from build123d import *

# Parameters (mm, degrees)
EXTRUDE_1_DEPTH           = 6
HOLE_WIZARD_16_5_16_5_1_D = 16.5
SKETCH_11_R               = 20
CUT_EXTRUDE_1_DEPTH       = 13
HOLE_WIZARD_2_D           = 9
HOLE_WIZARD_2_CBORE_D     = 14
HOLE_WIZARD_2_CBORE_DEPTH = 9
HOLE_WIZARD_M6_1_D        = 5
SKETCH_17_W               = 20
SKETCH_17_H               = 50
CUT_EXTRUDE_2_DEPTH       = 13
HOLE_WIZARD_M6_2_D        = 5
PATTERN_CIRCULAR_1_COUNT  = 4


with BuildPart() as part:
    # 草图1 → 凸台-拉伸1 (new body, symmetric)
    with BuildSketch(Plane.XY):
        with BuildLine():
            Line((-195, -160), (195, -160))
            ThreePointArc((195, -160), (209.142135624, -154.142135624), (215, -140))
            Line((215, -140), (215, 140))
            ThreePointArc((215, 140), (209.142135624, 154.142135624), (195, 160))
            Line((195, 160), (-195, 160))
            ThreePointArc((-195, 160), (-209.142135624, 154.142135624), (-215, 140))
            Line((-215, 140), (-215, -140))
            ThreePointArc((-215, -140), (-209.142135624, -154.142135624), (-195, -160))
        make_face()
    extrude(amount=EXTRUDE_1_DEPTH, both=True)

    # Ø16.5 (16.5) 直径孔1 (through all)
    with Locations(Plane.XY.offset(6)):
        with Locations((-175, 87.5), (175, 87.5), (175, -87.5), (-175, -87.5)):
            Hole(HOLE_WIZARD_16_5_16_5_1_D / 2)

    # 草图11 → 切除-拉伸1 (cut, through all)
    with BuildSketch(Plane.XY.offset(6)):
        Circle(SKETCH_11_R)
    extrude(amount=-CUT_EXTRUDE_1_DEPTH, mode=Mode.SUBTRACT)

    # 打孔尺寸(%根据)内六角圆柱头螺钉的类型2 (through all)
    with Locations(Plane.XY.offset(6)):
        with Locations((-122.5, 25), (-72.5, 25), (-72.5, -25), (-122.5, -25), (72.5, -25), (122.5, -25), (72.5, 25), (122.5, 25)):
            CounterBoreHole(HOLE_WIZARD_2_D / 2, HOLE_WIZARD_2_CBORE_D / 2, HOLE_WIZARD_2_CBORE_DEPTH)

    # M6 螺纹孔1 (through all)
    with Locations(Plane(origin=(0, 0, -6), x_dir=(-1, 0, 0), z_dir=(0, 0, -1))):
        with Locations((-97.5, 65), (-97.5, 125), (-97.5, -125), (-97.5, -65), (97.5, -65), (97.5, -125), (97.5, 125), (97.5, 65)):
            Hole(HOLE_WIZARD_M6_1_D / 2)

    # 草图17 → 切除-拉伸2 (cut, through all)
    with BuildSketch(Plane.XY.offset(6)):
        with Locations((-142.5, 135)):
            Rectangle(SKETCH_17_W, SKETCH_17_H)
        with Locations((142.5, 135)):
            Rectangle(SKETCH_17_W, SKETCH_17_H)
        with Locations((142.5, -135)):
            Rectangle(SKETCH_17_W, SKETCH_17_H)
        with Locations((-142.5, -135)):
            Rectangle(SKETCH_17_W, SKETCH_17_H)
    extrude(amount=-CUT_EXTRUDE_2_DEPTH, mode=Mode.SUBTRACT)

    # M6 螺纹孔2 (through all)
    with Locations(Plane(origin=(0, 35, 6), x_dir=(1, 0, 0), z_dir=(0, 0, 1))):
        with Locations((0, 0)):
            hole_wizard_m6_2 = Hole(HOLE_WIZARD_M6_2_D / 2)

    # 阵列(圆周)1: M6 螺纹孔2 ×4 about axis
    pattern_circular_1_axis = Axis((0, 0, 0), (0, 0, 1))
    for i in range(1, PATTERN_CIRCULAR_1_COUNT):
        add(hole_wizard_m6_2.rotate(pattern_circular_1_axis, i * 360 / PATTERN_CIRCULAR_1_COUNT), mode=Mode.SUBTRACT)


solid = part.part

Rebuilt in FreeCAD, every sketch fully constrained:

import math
import FreeCAD as App
import Part
import Sketcher
from FreeCAD import Vector


def add_polygon(sketch, points):
    """Adds a closed chain of lines whose ends are joined by coincident constraints."""
    first, n = sketch.GeometryCount, len(points)
    for a, b in zip(points, points[1:] + points[:1]):
        sketch.addGeometry(Part.LineSegment(App.Vector(*a, 0), App.Vector(*b, 0)), False)
    for i in range(n):
        sketch.addConstraint(Sketcher.Constraint("Coincident", first + i, 2, first + (i + 1) % n, 1))

doc = App.newDocument("Part")
body = doc.addObject("PartDesign::Body", "Body")

sketch1 = body.newObject("Sketcher::SketchObject", "Sketch")
sketch1.AttachmentSupport = (doc.getObject("XY_Plane"), [""])
sketch1.MapMode = "FlatFace"
sketch1.addGeometry(Part.LineSegment(Vector(-195, -160, 0), Vector(195, -160, 0)), False)
sketch1.addGeometry(Part.ArcOfCircle(Part.Circle(Vector(195, -140, 0), Vector(0, 0, 1), 20), math.radians(-90), math.radians(0)), False)
sketch1.addGeometry(Part.LineSegment(Vector(215, -140, 0), Vector(215, 140, 0)), False)
sketch1.addGeometry(Part.ArcOfCircle(Part.Circle(Vector(195, 140, 0), Vector(0, 0, 1), 20), math.radians(0), math.radians(90)), False)
sketch1.addGeometry(Part.LineSegment(Vector(195, 160, 0), Vector(-195, 160, 0)), False)
sketch1.addGeometry(Part.ArcOfCircle(Part.Circle(Vector(-195, 140, 0), Vector(0, 0, 1), 20), math.radians(90), math.radians(180)), False)
sketch1.addGeometry(Part.LineSegment(Vector(-215, 140, 0), Vector(-215, -140, 0)), False)
sketch1.addGeometry(Part.ArcOfCircle(Part.Circle(Vector(-195, -140, 0), Vector(0, 0, 1), 20), math.radians(180), math.radians(270)), False)
sketch1.addConstraint(Sketcher.Constraint("Tangent", 0, 2, 1, 1))
sketch1.addConstraint(Sketcher.Constraint("Tangent", 1, 2, 2, 1))
sketch1.addConstraint(Sketcher.Constraint("Tangent", 2, 2, 3, 1))
sketch1.addConstraint(Sketcher.Constraint("Tangent", 3, 2, 4, 1))
sketch1.addConstraint(Sketcher.Constraint("Tangent", 4, 2, 5, 1))
sketch1.addConstraint(Sketcher.Constraint("Tangent", 5, 2, 6, 1))
sketch1.addConstraint(Sketcher.Constraint("Tangent", 6, 2, 7, 1))
sketch1.addConstraint(Sketcher.Constraint("Tangent", 7, 2, 0, 1))
sketch1.addConstraint(Sketcher.Constraint("Horizontal", 0))
sketch1.addConstraint(Sketcher.Constraint("Vertical", 2))
sketch1.addConstraint(Sketcher.Constraint("Horizontal", 4))
sketch1.addConstraint(Sketcher.Constraint("Vertical", 6))
sketch1.addConstraint(Sketcher.Constraint("Equal", 1, 3))
sketch1.addConstraint(Sketcher.Constraint("Equal", 3, 5))
sketch1.addConstraint(Sketcher.Constraint("Equal", 5, 7))
sketch1.addConstraint(Sketcher.Constraint("Symmetric", 1, 3, 5, 3, -1, 1))
sketch1.addConstraint(Sketcher.Constraint("Radius", 1, 20.0))
sketch1.addConstraint(Sketcher.Constraint("DistanceX", 0, 1, 0, 2, 390.0))
sketch1.addConstraint(Sketcher.Constraint("DistanceY", 2, 1, 2, 2, 280.0))
pad1 = body.newObject("PartDesign::Pad", "Pad")
pad1.Profile = sketch1
pad1.Length = 12
pad1.Midplane = True

sketch2 = body.newObject("Sketcher::SketchObject", "Sketch001")
sketch2.AttachmentSupport = (doc.getObject("XY_Plane"), [""])
sketch2.MapMode = "FlatFace"
sketch2.AttachmentOffset = App.Placement(Vector(0, 0, 6), App.Rotation())
sketch2.addGeometry(Part.Circle(Vector(-175, 88, 0), Vector(0, 0, 1), 8), False)
sketch2.addGeometry(Part.Circle(Vector(175, 88, 0), Vector(0, 0, 1), 8), False)
sketch2.addGeometry(Part.Circle(Vector(175, -88, 0), Vector(0, 0, 1), 8), False)
sketch2.addGeometry(Part.Circle(Vector(-175, -88, 0), Vector(0, 0, 1), 8), False)
sketch2.addConstraint(Sketcher.Constraint("Equal", 0, 1))
sketch2.addConstraint(Sketcher.Constraint("Equal", 1, 2))
sketch2.addConstraint(Sketcher.Constraint("Equal", 2, 3))
sketch2.addConstraint(Sketcher.Constraint("Symmetric", 0, 3, 2, 3, -1, 1))
sketch2.addConstraint(Sketcher.Constraint("Symmetric", 1, 3, 3, 3, -1, 1))
sketch2.addConstraint(Sketcher.Constraint("Symmetric", 0, 3, 1, 3, -2))
sketch2.addConstraint(Sketcher.Constraint("Diameter", 0, 16.5))
sketch2.addConstraint(Sketcher.Constraint("DistanceX", 0, 3, -1, 1, 175.0))
sketch2.addConstraint(Sketcher.Constraint("DistanceY", 2, 3, 1, 3, 175.0))
doc.recompute()
hole = body.newObject("PartDesign::Hole", "Hole")
hole.Profile = sketch2
hole.ThreadType = "None"
hole.Diameter = 16.5
hole.DepthType = "ThroughAll"

sketch3 = body.newObject("Sketcher::SketchObject", "Sketch002")
sketch3.AttachmentSupport = (doc.getObject("XY_Plane"), [""])
sketch3.MapMode = "FlatFace"
sketch3.AttachmentOffset = App.Placement(Vector(0, 0, 6), App.Rotation())
sketch3.addGeometry(Part.Circle(Vector(0, 0, 0), Vector(0, 0, 1), 20), False)
sketch3.addConstraint(Sketcher.Constraint("Coincident", 0, 3, -1, 1))
sketch3.addConstraint(Sketcher.Constraint("Diameter", 0, 40.0))
pocket1 = body.newObject("PartDesign::Pocket", "Pocket")
pocket1.Profile = sketch3
pocket1.Type = "ThroughAll"

sketch4 = body.newObject("Sketcher::SketchObject", "Sketch003")
sketch4.AttachmentSupport = (doc.getObject("XY_Plane"), [""])
sketch4.MapMode = "FlatFace"
sketch4.AttachmentOffset = App.Placement(Vector(0, 0, 6), App.Rotation())
sketch4.addGeometry(Part.Circle(Vector(-122.5, 25, 0), Vector(0, 0, 1), 4.5), False)
sketch4.addGeometry(Part.Circle(Vector(-72.5, 25, 0), Vector(0, 0, 1), 4.5), False)
sketch4.addGeometry(Part.Circle(Vector(-72.5, -25, 0), Vector(0, 0, 1), 4.5), False)
sketch4.addGeometry(Part.Circle(Vector(-122.5, -25, 0), Vector(0, 0, 1), 4.5), False)
sketch4.addGeometry(Part.Circle(Vector(72.5, -25, 0), Vector(0, 0, 1), 4.5), False)
sketch4.addGeometry(Part.Circle(Vector(122.5, -25, 0), Vector(0, 0, 1), 4.5), False)
sketch4.addGeometry(Part.Circle(Vector(72.5, 25, 0), Vector(0, 0, 1), 4.5), False)
sketch4.addGeometry(Part.Circle(Vector(122.5, 25, 0), Vector(0, 0, 1), 4.5), False)
sketch4.addConstraint(Sketcher.Constraint("Equal", 0, 1))
sketch4.addConstraint(Sketcher.Constraint("Equal", 1, 2))
sketch4.addConstraint(Sketcher.Constraint("Equal", 2, 3))
sketch4.addConstraint(Sketcher.Constraint("Equal", 3, 4))
sketch4.addConstraint(Sketcher.Constraint("Equal", 4, 5))
sketch4.addConstraint(Sketcher.Constraint("Equal", 5, 6))
sketch4.addConstraint(Sketcher.Constraint("Equal", 6, 7))
sketch4.addConstraint(Sketcher.Constraint("Symmetric", 1, 3, 4, 3, -1, 1))
sketch4.addConstraint(Sketcher.Constraint("Symmetric", 0, 3, 5, 3, -1, 1))
sketch4.addConstraint(Sketcher.Constraint("Symmetric", 2, 3, 6, 3, -1, 1))
sketch4.addConstraint(Sketcher.Constraint("Symmetric", 3, 3, 7, 3, -1, 1))
sketch4.addConstraint(Sketcher.Constraint("Symmetric", 2, 3, 4, 3, -2))
sketch4.addConstraint(Sketcher.Constraint("Symmetric", 3, 3, 5, 3, -2))
sketch4.addConstraint(Sketcher.Constraint("Horizontal", 0, 3, 1, 3))
sketch4.addConstraint(Sketcher.Constraint("Diameter", 0, 9.0))
sketch4.addConstraint(Sketcher.Constraint("DistanceY", -1, 1, 0, 3, 25.0))
sketch4.addConstraint(Sketcher.Constraint("DistanceX", 0, 3, 1, 3, 50.0))
sketch4.addConstraint(Sketcher.Constraint("DistanceX", 2, 3, 4, 3, 145.0))
doc.recompute()
hole2 = body.newObject("PartDesign::Hole", "Hole001")
hole2.Profile = sketch4
hole2.ThreadType = "None"
hole2.Diameter = 9
hole2.DepthType = "ThroughAll"
hole2.HoleCutType = "Counterbore"
hole2.HoleCutDiameter = 14
hole2.HoleCutDepth = 9

sketch5 = body.newObject("Sketcher::SketchObject", "Sketch004")
sketch5.AttachmentSupport = (doc.getObject("XY_Plane"), [""])
sketch5.MapMode = "FlatFace"
sketch5.AttachmentOffset = App.Placement(Vector(0, 0, -6), App.Rotation())
sketch5.addGeometry(Part.Circle(Vector(97.5, 65, 0), Vector(0, 0, 1), 2.5), False)
sketch5.addGeometry(Part.Circle(Vector(97.5, 125, 0), Vector(0, 0, 1), 2.5), False)
sketch5.addGeometry(Part.Circle(Vector(97.5, -125, 0), Vector(0, 0, 1), 2.5), False)
sketch5.addGeometry(Part.Circle(Vector(97.5, -65, 0), Vector(0, 0, 1), 2.5), False)
sketch5.addGeometry(Part.Circle(Vector(-97.5, -65, 0), Vector(0, 0, 1), 2.5), False)
sketch5.addGeometry(Part.Circle(Vector(-97.5, -125, 0), Vector(0, 0, 1), 2.5), False)
sketch5.addGeometry(Part.Circle(Vector(-97.5, 125, 0), Vector(0, 0, 1), 2.5), False)
sketch5.addGeometry(Part.Circle(Vector(-97.5, 65, 0), Vector(0, 0, 1), 2.5), False)
sketch5.addConstraint(Sketcher.Constraint("Equal", 0, 1))
sketch5.addConstraint(Sketcher.Constraint("Equal", 1, 2))
sketch5.addConstraint(Sketcher.Constraint("Equal", 2, 3))
sketch5.addConstraint(Sketcher.Constraint("Equal", 3, 4))
sketch5.addConstraint(Sketcher.Constraint("Equal", 4, 5))
sketch5.addConstraint(Sketcher.Constraint("Equal", 5, 6))
sketch5.addConstraint(Sketcher.Constraint("Equal", 6, 7))
sketch5.addConstraint(Sketcher.Constraint("Symmetric", 0, 3, 4, 3, -1, 1))
sketch5.addConstraint(Sketcher.Constraint("Symmetric", 1, 3, 5, 3, -1, 1))
sketch5.addConstraint(Sketcher.Constraint("Symmetric", 2, 3, 6, 3, -1, 1))
sketch5.addConstraint(Sketcher.Constraint("Symmetric", 3, 3, 7, 3, -1, 1))
sketch5.addConstraint(Sketcher.Constraint("Symmetric", 3, 3, 4, 3, -2))
sketch5.addConstraint(Sketcher.Constraint("Symmetric", 2, 3, 5, 3, -2))
sketch5.addConstraint(Sketcher.Constraint("Vertical", 0, 3, 1, 3))
sketch5.addConstraint(Sketcher.Constraint("Diameter", 0, 5.0))
sketch5.addConstraint(Sketcher.Constraint("DistanceY", -1, 1, 0, 3, 65.0))
sketch5.addConstraint(Sketcher.Constraint("DistanceY", -1, 1, 1, 3, 125.0))
sketch5.addConstraint(Sketcher.Constraint("DistanceX", 4, 3, 3, 3, 195.0))
doc.recompute()
hole3 = body.newObject("PartDesign::Hole", "Hole002")
hole3.Profile = sketch5
hole3.ThreadType = "None"
hole3.Diameter = 5
hole3.DepthType = "ThroughAll"
hole3.Reversed = True

sketch6 = body.newObject("Sketcher::SketchObject", "Sketch005")
sketch6.AttachmentSupport = (doc.getObject("XY_Plane"), [""])
sketch6.MapMode = "FlatFace"
sketch6.AttachmentOffset = App.Placement(Vector(0, 0, 6), App.Rotation())
add_polygon(sketch6, [(-152, 160), (-152, 110), (-132, 110), (-132, 160)])
add_polygon(sketch6, [(132, 160), (132, 110), (152, 110), (152, 160)])
add_polygon(sketch6, [(132, -110), (132, -160), (152, -160), (152, -110)])
add_polygon(sketch6, [(-152, -110), (-152, -160), (-132, -160), (-132, -110)])
sketch6.addConstraint(Sketcher.Constraint("Vertical", 0))
sketch6.addConstraint(Sketcher.Constraint("Horizontal", 1))
sketch6.addConstraint(Sketcher.Constraint("Vertical", 2))
sketch6.addConstraint(Sketcher.Constraint("Horizontal", 3))
sketch6.addConstraint(Sketcher.Constraint("Vertical", 4))
sketch6.addConstraint(Sketcher.Constraint("Horizontal", 5))
sketch6.addConstraint(Sketcher.Constraint("Vertical", 6))
sketch6.addConstraint(Sketcher.Constraint("Horizontal", 7))
sketch6.addConstraint(Sketcher.Constraint("Vertical", 8))
sketch6.addConstraint(Sketcher.Constraint("Horizontal", 9))
sketch6.addConstraint(Sketcher.Constraint("Vertical", 10))
sketch6.addConstraint(Sketcher.Constraint("Horizontal", 11))
sketch6.addConstraint(Sketcher.Constraint("Vertical", 12))
sketch6.addConstraint(Sketcher.Constraint("Horizontal", 13))
sketch6.addConstraint(Sketcher.Constraint("Vertical", 14))
sketch6.addConstraint(Sketcher.Constraint("Horizontal", 15))
sketch6.addConstraint(Sketcher.Constraint("Symmetric", 2, 2, 8, 2, -1, 1))
sketch6.addConstraint(Sketcher.Constraint("Symmetric", 0, 2, 10, 2, -1, 1))
sketch6.addConstraint(Sketcher.Constraint("Symmetric", 6, 2, 12, 2, -1, 1))
sketch6.addConstraint(Sketcher.Constraint("Symmetric", 4, 2, 14, 2, -1, 1))
sketch6.addConstraint(Sketcher.Constraint("Symmetric", 1, 2, 4, 2, -2))
sketch6.addConstraint(Sketcher.Constraint("Symmetric", 3, 2, 6, 2, -2))
sketch6.addConstraint(Sketcher.Constraint("DistanceX", 1, 1, 1, 2, 20.0))
sketch6.addConstraint(Sketcher.Constraint("DistanceY", 0, 2, 0, 1, 50.0))
sketch6.addConstraint(Sketcher.Constraint("DistanceY", -1, 1, 0, 2, 110.0))
sketch6.addConstraint(Sketcher.Constraint("DistanceX", 1, 2, 4, 2, 265.0))
pocket2 = body.newObject("PartDesign::Pocket", "Pocket001")
pocket2.Profile = sketch6
pocket2.Type = "ThroughAll"

sketch7 = body.newObject("Sketcher::SketchObject", "Sketch006")
sketch7.AttachmentSupport = (doc.getObject("XY_Plane"), [""])
sketch7.MapMode = "FlatFace"
sketch7.AttachmentOffset = App.Placement(Vector(0, 0, 6), App.Rotation())
sketch7.addGeometry(Part.Circle(Vector(0, 35, 0), Vector(0, 0, 1), 2.5), False)
sketch7.addConstraint(Sketcher.Constraint("PointOnObject", 0, 3, -2))
sketch7.addConstraint(Sketcher.Constraint("Diameter", 0, 5.0))
sketch7.addConstraint(Sketcher.Constraint("DistanceY", -1, 1, 0, 3, 35.0))
doc.recompute()
hole4 = body.newObject("PartDesign::Hole", "Hole003")
hole4.Profile = sketch7
hole4.ThreadType = "None"
hole4.Diameter = 5
hole4.DepthType = "ThroughAll"
doc.recompute()

polarpattern = body.newObject("PartDesign::PolarPattern", "PolarPattern")
polarpattern.Originals = [hole4]
polarpattern.Axis = (doc.getObject("Z_Axis"), [""])
polarpattern.Angle = 360
polarpattern.Occurrences = 4
body.Tip = polarpattern

doc.recompute()
